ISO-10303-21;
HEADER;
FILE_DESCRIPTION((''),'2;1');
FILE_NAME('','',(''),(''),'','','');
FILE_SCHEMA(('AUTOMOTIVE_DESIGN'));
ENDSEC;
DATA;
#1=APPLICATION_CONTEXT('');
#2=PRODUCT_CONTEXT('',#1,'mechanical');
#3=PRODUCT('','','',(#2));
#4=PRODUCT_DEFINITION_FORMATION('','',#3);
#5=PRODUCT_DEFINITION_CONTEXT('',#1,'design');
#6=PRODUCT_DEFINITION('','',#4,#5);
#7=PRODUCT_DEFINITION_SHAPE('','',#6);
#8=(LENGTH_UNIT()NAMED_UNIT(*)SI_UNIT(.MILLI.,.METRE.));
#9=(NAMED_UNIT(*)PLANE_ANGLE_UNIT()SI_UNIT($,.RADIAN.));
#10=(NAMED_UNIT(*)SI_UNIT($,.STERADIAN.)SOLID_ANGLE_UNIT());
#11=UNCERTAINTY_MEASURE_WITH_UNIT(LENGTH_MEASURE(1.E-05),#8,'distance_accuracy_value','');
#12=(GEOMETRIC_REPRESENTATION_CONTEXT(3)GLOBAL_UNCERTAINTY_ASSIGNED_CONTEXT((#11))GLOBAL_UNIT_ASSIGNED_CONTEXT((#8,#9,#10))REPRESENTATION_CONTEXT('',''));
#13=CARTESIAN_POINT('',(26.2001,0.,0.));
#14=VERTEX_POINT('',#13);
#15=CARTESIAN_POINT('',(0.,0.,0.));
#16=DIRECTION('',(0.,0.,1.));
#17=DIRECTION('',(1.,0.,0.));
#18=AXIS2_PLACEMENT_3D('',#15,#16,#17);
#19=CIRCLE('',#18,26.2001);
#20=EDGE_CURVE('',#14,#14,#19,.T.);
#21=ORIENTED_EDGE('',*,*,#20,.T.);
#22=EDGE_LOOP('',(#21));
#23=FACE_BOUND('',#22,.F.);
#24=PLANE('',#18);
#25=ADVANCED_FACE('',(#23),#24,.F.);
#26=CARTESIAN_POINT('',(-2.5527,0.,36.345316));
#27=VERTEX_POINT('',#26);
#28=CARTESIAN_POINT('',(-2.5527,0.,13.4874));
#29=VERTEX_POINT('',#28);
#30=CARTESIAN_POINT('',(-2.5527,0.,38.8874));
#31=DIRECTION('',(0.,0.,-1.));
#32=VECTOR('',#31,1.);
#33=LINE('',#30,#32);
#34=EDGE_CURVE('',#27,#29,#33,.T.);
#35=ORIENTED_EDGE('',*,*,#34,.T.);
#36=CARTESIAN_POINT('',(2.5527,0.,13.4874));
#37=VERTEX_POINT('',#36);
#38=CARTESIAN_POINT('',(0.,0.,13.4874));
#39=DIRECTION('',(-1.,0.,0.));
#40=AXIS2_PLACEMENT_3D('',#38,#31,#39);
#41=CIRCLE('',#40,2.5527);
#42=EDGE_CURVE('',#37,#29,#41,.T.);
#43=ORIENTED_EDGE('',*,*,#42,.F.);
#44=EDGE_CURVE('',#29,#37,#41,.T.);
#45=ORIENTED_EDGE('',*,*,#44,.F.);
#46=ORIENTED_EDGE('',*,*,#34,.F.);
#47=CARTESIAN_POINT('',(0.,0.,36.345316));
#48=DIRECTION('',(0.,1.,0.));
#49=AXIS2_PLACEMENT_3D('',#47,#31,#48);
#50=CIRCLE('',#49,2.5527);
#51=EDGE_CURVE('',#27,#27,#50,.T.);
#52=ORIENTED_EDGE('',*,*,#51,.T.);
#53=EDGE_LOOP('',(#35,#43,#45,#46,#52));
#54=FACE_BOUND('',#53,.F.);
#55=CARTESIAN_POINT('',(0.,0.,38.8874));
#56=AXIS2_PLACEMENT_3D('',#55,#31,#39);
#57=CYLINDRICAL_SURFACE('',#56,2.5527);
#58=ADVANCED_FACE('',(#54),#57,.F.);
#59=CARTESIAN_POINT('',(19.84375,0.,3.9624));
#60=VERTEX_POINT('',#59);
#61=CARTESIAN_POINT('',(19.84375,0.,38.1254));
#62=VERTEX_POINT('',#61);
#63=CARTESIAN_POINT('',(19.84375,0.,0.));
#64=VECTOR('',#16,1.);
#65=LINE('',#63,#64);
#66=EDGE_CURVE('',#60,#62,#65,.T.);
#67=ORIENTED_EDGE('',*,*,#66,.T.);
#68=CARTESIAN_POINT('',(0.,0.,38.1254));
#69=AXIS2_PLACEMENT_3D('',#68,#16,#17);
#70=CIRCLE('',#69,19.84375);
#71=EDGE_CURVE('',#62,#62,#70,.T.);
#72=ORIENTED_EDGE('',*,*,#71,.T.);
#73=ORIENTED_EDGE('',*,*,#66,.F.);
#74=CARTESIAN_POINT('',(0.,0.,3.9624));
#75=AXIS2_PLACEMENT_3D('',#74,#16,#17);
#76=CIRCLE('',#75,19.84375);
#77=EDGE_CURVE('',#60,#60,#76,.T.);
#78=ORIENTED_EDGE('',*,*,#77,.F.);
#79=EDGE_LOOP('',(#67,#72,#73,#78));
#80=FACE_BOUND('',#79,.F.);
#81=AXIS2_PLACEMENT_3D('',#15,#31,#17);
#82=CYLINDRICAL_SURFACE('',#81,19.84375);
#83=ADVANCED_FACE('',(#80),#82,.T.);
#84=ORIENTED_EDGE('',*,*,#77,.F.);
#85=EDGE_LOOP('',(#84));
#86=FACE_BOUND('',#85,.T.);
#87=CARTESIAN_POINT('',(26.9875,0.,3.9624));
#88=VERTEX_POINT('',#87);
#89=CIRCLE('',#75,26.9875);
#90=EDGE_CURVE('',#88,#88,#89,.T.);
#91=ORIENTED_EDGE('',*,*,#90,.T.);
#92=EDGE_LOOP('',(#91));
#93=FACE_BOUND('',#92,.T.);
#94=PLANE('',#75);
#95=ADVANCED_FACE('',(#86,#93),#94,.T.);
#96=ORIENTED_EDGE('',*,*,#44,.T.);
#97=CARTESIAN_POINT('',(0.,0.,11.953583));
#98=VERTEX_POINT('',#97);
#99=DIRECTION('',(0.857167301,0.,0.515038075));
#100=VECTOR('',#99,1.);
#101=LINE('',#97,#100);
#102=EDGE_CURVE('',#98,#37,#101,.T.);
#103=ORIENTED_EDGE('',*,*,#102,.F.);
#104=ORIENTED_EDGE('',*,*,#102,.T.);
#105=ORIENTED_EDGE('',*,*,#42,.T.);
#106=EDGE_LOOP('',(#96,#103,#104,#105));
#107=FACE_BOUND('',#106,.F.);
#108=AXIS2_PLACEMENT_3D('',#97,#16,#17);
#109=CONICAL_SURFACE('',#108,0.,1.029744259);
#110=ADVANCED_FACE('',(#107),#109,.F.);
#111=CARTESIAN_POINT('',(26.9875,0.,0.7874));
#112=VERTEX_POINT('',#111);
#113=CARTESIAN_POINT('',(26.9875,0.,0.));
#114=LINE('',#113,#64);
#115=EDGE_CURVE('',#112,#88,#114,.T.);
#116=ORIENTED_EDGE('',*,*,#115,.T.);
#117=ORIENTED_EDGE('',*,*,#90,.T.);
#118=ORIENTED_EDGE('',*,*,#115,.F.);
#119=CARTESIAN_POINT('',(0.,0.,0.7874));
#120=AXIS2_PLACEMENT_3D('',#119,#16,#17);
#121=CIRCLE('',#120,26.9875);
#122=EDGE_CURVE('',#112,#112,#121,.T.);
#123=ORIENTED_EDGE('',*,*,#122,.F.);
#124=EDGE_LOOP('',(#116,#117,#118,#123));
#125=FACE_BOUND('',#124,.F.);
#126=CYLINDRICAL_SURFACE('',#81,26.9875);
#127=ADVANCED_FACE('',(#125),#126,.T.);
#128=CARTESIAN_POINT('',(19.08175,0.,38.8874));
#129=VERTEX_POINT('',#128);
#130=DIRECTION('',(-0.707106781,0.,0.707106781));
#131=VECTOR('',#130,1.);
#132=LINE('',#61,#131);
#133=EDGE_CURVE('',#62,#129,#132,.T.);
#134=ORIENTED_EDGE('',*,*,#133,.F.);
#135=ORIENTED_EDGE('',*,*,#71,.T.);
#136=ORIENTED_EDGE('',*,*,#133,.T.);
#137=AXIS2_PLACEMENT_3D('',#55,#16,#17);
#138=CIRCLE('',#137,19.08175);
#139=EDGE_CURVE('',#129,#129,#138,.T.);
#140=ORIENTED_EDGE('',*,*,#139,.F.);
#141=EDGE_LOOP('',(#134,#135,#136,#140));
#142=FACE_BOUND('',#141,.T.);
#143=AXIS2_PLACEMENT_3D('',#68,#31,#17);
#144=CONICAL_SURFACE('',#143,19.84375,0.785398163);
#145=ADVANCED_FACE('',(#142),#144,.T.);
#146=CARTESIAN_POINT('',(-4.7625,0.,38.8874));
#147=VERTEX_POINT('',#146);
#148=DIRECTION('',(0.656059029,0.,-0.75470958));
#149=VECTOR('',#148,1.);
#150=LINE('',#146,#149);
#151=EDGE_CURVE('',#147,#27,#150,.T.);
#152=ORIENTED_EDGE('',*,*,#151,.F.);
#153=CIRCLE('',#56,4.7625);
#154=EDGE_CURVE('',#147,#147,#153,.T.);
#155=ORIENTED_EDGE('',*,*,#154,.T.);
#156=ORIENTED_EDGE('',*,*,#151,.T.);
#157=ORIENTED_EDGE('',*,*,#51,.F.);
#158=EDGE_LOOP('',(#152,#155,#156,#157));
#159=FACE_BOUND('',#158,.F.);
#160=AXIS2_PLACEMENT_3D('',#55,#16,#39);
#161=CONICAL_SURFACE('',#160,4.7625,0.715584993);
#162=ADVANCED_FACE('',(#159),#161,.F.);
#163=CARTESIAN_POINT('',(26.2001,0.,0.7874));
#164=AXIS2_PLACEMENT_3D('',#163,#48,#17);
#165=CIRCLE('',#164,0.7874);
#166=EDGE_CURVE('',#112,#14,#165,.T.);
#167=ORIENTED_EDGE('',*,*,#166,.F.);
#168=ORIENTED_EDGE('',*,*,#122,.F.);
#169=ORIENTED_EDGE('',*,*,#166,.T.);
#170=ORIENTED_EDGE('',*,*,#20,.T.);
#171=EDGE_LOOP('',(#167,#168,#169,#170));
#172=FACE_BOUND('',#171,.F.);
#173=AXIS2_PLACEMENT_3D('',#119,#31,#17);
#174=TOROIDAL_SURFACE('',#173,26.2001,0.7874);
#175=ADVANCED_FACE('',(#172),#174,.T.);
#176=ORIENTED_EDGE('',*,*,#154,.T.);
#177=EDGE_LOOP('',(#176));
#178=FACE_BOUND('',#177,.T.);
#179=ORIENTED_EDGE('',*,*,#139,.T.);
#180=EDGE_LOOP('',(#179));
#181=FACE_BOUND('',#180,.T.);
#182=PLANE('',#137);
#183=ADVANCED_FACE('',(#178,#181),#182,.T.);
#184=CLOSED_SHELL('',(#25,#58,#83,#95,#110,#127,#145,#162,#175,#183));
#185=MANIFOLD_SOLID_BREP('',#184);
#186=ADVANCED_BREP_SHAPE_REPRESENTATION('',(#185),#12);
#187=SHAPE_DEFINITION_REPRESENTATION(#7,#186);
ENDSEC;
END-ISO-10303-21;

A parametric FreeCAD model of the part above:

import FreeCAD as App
import Part
import Sketcher
Q = App.Units.Quantity


def edges_at(feature, points):
    """Names of the edges that pass closest to the given points."""
    edges = feature.Shape.Edges
    near = lambda p: min(range(len(edges)), key=lambda i: edges[i].distToShape(Part.Vertex(*p))[0])
    return sorted({f"Edge{near(p) + 1}" for p in points})

doc = App.newDocument("Part")
body = doc.addObject("PartDesign::Body", "Body")

# Sketch on XY plane
sketch1 = body.newObject("Sketcher::SketchObject", "Sketch")
sketch1.AttachmentSupport = (doc.getObject("XY_Plane"), [""])
sketch1.MapMode = "FlatFace"
sketch1.addGeometry([
    Part.Circle(App.Vector(0, 0, 0), App.Vector(0, 0, 1), 26.9875),
    Part.Circle(App.Vector(0, 0, 0), App.Vector(0, 0, 1), 19.84375),
], False)
sketch1.addConstraint([
    Sketcher.Constraint("Coincident", 0, 3, -1, 1),
    Sketcher.Constraint("Coincident", 1, 3, -1, 1),
    Sketcher.Constraint("Diameter", 0, Q("2.125 in")),
    Sketcher.Constraint("Diameter", 1, Q("1.5625 in")),
])
pad1 = body.newObject("PartDesign::Pad", "Pad")
pad1.Profile = sketch1
pad1.Length = Q("0.156 in")

# Sketch on XY plane
sketch2 = body.newObject("Sketcher::SketchObject", "Sketch001")
sketch2.AttachmentSupport = (doc.getObject("XY_Plane"), [""])
sketch2.MapMode = "FlatFace"
sketch2.addGeometry(Part.Circle(App.Vector(0, 0, 0), App.Vector(0, 0, 1), 19.84375), False)
sketch2.addConstraint([
    Sketcher.Constraint("Coincident", 0, 3, -1, 1),
    Sketcher.Constraint("Diameter", 0, Q("1.5625 in")),
])
pad2 = body.newObject("PartDesign::Pad", "Pad001")
pad2.Profile = sketch2
pad2.Length = Q("1.531 in")
doc.recompute()

fillet = body.newObject("PartDesign::Fillet", "Fillet")
fillet.Base = (pad2, edges_at(pad2, [(-26.988, 0, 0)]))
fillet.Radius = Q("0.031 in")
doc.recompute()

chamfer = body.newObject("PartDesign::Chamfer", "Chamfer")
chamfer.Base = (fillet, edges_at(fillet, [(-19.844, 0, 38.887)]))
chamfer.ChamferType = "Two distances"
chamfer.Size = Q("0.03 in")
chamfer.Size2 = Q("0.03 in")

# Sketch on XY plane
sketch3 = body.newObject("Sketcher::SketchObject", "Sketch002")
sketch3.AttachmentSupport = (doc.getObject("XY_Plane"), [""])
sketch3.MapMode = "FlatFace"
sketch3.AttachmentOffset = App.Placement(App.Vector(0, 0, 1.531 * 25.4), App.Rotation())
sketch3.addGeometry(Part.Circle(App.Vector(0, 0, 0), App.Vector(0, 0, 1), 2.5527), False)
sketch3.addConstraint([
    Sketcher.Constraint("Coincident", 0, 3, -1, 1),
    Sketcher.Constraint("Diameter", 0, Q("0.201 in")),
])
doc.recompute()
hole = body.newObject("PartDesign::Hole", "Hole")
hole.Profile = sketch3
hole.ThreadType = "None"
hole.Diameter = Q("0.201 in")
hole.DepthType = "Dimension"
hole.Depth = Q("1 in")
hole.DrillPoint = "Angled"
hole.DrillPointAngle = 118
hole.HoleCutType = "Countersink"
hole.HoleCutDiameter = Q("0.375 in")
hole.HoleCutCountersinkAngle = 82

doc.recompute()
